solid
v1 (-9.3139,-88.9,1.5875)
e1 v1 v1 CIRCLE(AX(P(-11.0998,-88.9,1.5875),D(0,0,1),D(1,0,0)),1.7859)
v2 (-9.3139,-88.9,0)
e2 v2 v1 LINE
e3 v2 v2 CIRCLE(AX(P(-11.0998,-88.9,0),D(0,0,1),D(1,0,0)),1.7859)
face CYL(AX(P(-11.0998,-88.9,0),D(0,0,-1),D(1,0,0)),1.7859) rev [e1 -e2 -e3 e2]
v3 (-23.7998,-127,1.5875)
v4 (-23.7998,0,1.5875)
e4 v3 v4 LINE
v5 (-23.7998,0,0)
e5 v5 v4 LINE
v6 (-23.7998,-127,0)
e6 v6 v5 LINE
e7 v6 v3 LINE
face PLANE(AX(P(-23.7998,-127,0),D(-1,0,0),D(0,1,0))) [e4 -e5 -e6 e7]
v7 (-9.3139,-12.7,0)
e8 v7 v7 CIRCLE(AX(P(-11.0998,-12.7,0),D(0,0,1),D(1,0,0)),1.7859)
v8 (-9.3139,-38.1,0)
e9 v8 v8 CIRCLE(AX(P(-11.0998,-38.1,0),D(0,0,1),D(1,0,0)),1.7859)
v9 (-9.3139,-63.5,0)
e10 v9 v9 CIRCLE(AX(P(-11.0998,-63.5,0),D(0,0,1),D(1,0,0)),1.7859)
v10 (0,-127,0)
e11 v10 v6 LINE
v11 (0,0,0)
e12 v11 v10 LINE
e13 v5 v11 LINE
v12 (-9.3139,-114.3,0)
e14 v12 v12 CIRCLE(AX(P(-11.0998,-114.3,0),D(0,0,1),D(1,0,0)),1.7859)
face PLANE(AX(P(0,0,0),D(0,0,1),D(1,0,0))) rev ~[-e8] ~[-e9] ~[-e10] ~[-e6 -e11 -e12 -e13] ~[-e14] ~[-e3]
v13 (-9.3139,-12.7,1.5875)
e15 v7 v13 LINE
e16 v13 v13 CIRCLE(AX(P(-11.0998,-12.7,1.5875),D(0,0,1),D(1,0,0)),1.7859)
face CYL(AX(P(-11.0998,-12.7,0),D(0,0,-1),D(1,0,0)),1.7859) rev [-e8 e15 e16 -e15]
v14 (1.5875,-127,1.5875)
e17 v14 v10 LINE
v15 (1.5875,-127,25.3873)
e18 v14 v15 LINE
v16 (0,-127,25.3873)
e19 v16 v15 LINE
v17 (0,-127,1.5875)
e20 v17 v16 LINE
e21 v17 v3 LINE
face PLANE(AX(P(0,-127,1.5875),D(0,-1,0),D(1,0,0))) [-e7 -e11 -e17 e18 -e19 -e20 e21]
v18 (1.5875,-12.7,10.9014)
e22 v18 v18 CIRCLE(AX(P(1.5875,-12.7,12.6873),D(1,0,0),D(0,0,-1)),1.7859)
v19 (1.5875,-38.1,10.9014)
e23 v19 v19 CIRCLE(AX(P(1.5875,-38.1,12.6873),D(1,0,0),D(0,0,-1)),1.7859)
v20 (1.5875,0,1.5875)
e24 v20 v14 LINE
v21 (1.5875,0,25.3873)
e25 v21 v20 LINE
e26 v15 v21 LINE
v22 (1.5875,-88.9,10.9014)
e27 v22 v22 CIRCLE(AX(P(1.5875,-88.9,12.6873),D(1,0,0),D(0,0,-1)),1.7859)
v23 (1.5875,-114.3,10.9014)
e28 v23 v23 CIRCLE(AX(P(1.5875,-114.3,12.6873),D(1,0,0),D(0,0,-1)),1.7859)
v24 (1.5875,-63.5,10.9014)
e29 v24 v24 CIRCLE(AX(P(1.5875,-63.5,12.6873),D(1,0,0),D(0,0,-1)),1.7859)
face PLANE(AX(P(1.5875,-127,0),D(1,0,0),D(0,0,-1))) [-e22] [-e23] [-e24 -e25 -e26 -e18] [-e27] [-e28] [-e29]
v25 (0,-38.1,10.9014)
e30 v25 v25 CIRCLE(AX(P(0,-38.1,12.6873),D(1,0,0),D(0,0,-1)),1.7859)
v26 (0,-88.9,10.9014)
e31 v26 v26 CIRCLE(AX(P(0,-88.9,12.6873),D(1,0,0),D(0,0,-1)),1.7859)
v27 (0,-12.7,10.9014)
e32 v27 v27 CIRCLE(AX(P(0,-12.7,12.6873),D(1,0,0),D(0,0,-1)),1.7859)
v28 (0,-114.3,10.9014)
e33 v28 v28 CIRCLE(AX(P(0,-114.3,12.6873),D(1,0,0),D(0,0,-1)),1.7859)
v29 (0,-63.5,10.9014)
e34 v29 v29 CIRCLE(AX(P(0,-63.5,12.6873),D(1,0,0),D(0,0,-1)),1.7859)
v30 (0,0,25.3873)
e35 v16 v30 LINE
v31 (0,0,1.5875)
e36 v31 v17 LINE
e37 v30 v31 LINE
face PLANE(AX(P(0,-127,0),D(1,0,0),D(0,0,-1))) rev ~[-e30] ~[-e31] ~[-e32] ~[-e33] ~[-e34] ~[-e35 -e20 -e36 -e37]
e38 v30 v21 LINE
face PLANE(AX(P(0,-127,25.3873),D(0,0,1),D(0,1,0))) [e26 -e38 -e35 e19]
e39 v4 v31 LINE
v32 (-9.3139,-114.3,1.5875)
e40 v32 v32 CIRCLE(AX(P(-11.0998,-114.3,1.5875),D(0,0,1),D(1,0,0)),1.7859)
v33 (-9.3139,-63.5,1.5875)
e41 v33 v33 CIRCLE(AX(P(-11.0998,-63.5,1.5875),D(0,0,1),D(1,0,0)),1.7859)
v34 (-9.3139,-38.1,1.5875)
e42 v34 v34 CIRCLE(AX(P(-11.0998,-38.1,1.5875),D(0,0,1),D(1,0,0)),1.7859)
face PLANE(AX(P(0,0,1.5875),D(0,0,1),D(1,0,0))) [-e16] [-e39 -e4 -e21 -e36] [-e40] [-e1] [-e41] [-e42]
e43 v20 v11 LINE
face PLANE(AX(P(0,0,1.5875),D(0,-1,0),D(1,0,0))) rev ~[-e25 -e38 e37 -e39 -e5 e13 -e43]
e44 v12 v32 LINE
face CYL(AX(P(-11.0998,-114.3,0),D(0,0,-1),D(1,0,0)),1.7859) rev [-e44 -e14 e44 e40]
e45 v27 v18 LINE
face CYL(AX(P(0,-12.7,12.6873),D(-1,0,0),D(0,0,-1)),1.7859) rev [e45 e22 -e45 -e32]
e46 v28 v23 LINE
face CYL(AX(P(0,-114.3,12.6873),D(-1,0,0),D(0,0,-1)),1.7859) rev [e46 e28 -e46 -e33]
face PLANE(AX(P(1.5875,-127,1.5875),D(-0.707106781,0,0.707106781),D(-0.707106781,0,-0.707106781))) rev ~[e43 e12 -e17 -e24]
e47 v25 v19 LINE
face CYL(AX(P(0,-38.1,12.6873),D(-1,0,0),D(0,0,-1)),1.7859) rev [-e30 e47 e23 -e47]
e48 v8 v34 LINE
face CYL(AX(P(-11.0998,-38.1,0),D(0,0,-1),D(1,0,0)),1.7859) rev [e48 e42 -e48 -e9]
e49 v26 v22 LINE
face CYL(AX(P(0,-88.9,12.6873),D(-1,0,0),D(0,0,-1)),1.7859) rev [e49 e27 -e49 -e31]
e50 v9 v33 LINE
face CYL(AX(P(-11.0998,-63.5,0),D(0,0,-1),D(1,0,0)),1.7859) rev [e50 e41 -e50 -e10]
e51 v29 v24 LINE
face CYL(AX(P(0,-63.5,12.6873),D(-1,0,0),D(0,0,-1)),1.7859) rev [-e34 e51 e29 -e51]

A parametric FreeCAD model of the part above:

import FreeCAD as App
import Part
import Sketcher

V = App.Vector
Q = App.Units.Quantity


def add_polygon(sketch, points):
    """Adds a closed chain of lines whose ends are joined by coincident constraints."""
    first, n = sketch.GeometryCount, len(points)
    for a, b in zip(points, points[1:] + points[:1]):
        sketch.addGeometry(Part.LineSegment(App.Vector(*a, 0), App.Vector(*b, 0)), False)
    for i in range(n):
        sketch.addConstraint(Sketcher.Constraint("Coincident", first + i, 2, first + (i + 1) % n, 1))

doc = App.newDocument("Part")
params = doc.addObject("Spreadsheet::Sheet", "Params")
for row, (alias, value) in enumerate([
    ("sketch1_height", "5 in"),
    ("sketch1_diameter", "0.140622 in"),
    ("sketch1_width", "0.937 in"),
    ("pad1_length", "0.0625 in"),
    ("sketch2_width", "5 in"),
    ("sketch2_diameter", "0.140622 in"),
    ("sketch2_height", "0.937 in"),
    ("pad2_length", "0.0625 in"),
    ("sketch3_width", "0.0625 in"),
    ("pad3_length", "5 in"),
], start=1):
    params.set(f"A{row}", alias)
    params.set(f"B{row}", "=" + value)
    params.setAlias(f"B{row}", alias)

body = doc.addObject("PartDesign::Body", "Body")
body.AllowCompound = True

sketch1 = body.newObject("Sketcher::SketchObject", "Sketch")
sketch1.AttachmentSupport = (doc.getObject("XY_Plane"), [""])
sketch1.MapMode = "FlatFace"
add_polygon(sketch1, [(0, 0), (-23.7998, 0), (-23.7998, -127), (0, -127)])
sketch1.addGeometry(Part.Circle(V(-11.0998, -114.3, 0), V(0, 0, 1), 1.7859), False)
sketch1.addGeometry(Part.Circle(V(-11.0998, -88.9, 0), V(0, 0, 1), 1.7859), False)
sketch1.addGeometry(Part.Circle(V(-11.0998, -63.5, 0), V(0, 0, 1), 1.7859), False)
sketch1.addGeometry(Part.Circle(V(-11.0998, -38.1, 0), V(0, 0, 1), 1.7859), False)
sketch1.addGeometry(Part.Circle(V(-11.0998, -12.7, 0), V(0, 0, 1), 1.7859), False)
sketch1.addConstraint([
    Sketcher.Constraint("Horizontal", 0),
    Sketcher.Constraint("Vertical", 1),
    Sketcher.Constraint("Horizontal", 2),
    Sketcher.Constraint("Vertical", 3),
    Sketcher.Constraint("Coincident", 3, 2, -1, 1),
    Sketcher.Constraint("Equal", 4, 5),
    Sketcher.Constraint("Equal", 5, 6),
    Sketcher.Constraint("Equal", 6, 7),
    Sketcher.Constraint("Equal", 7, 8),
    Sketcher.Constraint("Vertical", 4, 3, 5, 3),
    Sketcher.Constraint("Vertical", 5, 3, 6, 3),
    Sketcher.Constraint("Vertical", 6, 3, 7, 3),
    Sketcher.Constraint("Vertical", 7, 3, 8, 3),
    Sketcher.Constraint("DistanceY", 1, 2, 1, 1, Q("5 in")),
    Sketcher.Constraint("Diameter", 4, Q("0.140622 in")),
    Sketcher.Constraint("DistanceY", 4, 3, 5, 3, Q("1 in")),
    Sketcher.Constraint("DistanceY", 5, 3, 6, 3, Q("1 in")),
    Sketcher.Constraint("DistanceY", 6, 3, 7, 3, Q("1 in")),
    Sketcher.Constraint("DistanceY", 7, 3, 8, 3, Q("1 in")),
    Sketcher.Constraint("DistanceY", 8, 3, -1, 1, Q("0.5 in")),
    Sketcher.Constraint("DistanceX", 0, 2, 8, 3, Q("0.5 in")),
    Sketcher.Constraint("DistanceX", 0, 2, 0, 1, Q("0.937 in")),
])
sketch1.setExpression("Constraints[17]", "Params.sketch1_height")
sketch1.setExpression("Constraints[18]", "Params.sketch1_diameter")
sketch1.setExpression("Constraints[25]", "Params.sketch1_width")
pad1 = body.newObject("PartDesign::Pad", "Pad")
pad1.Profile = sketch1
pad1.setExpression("Length", "Params.pad1_length")

sketch2 = body.newObject("Sketcher::SketchObject", "Sketch001")
sketch2.AttachmentSupport = (doc.getObject("YZ_Plane"), [""])
sketch2.MapMode = "FlatFace"
add_polygon(sketch2, [(0, 1.5875), (0, 25.3873), (-127, 25.3873), (-127, 1.5875)])
sketch2.addGeometry(Part.Circle(V(-114.3, 12.6873, 0), V(0, 0, 1), 1.7859), False)
sketch2.addGeometry(Part.Circle(V(-88.9, 12.6873, 0), V(0, 0, 1), 1.7859), False)
sketch2.addGeometry(Part.Circle(V(-63.5, 12.6873, 0), V(0, 0, 1), 1.7859), False)
sketch2.addGeometry(Part.Circle(V(-38.1, 12.6873, 0), V(0, 0, 1), 1.7859), False)
sketch2.addGeometry(Part.Circle(V(-12.7, 12.6873, 0), V(0, 0, 1), 1.7859), False)
sketch2.addConstraint([
    Sketcher.Constraint("Vertical", 0),
    Sketcher.Constraint("Horizontal", 1),
    Sketcher.Constraint("Vertical", 2),
    Sketcher.Constraint("Horizontal", 3),
    Sketcher.Constraint("Equal", 4, 5),
    Sketcher.Constraint("Equal", 5, 6),
    Sketcher.Constraint("Equal", 6, 7),
    Sketcher.Constraint("Equal", 7, 8),
    Sketcher.Constraint("PointOnObject", 0, 2, -2),
    Sketcher.Constraint("Horizontal", 4, 3, 5, 3),
    Sketcher.Constraint("Horizontal", 5, 3, 6, 3),
    Sketcher.Constraint("Horizontal", 6, 3, 7, 3),
    Sketcher.Constraint("Horizontal", 7, 3, 8, 3),
    Sketcher.Constraint("DistanceX", 1, 2, 1, 1, Q("5 in")),
    Sketcher.Constraint("Diameter", 4, Q("0.140622 in")),
    Sketcher.Constraint("DistanceX", 4, 3, 5, 3, Q("1 in")),
    Sketcher.Constraint("DistanceX", 5, 3, 6, 3, Q("1 in")),
    Sketcher.Constraint("DistanceX", 6, 3, 7, 3, Q("1 in")),
    Sketcher.Constraint("DistanceX", 7, 3, 8, 3, Q("1 in")),
    Sketcher.Constraint("DistanceX", 8, 3, -1, 1, Q("0.5 in")),
    Sketcher.Constraint("DistanceY", 8, 3, 0, 2, Q("0.5 in")),
    Sketcher.Constraint("DistanceY", 0, 1, 0, 2, Q("0.937 in")),
    Sketcher.Constraint("DistanceY", -1, 1, 2, 2, Q("0.0625 in")),
])
sketch2.setExpression("Constraints[17]", "Params.sketch2_width")
sketch2.setExpression("Constraints[18]", "Params.sketch2_diameter")
sketch2.setExpression("Constraints[25]", "Params.sketch2_height")
pad2 = body.newObject("PartDesign::Pad", "Pad001")
pad2.Profile = sketch2
pad2.setExpression("Length", "Params.pad2_length")

sketch3 = body.newObject("Sketcher::SketchObject", "Sketch002")
sketch3.AttachmentSupport = (doc.getObject("XZ_Plane"), [""])
sketch3.MapMode = "FlatFace"
sketch3.AttachmentOffset = App.Placement(V(0, 0, 5 * 25.4), App.Rotation())
add_polygon(sketch3, [(1.5875, 1.5875), (0, 1.5875), (0, 0)])
sketch3.addConstraint([
    Sketcher.Constraint("Horizontal", 0),
    Sketcher.Constraint("Vertical", 1),
    Sketcher.Constraint("Coincident", 1, 2, -1, 1),
    Sketcher.Constraint("Equal", 0, 1),
    Sketcher.Constraint("DistanceX", 0, 2, 0, 1, Q("0.0625 in")),
])
sketch3.setExpression("Constraints[7]", "Params.sketch3_width")
pad3 = body.newObject("PartDesign::Pad", "Pad002")
pad3.Profile = sketch3
pad3.setExpression("Length", "Params.pad3_length")
pad3.Reversed = True

doc.recompute()
